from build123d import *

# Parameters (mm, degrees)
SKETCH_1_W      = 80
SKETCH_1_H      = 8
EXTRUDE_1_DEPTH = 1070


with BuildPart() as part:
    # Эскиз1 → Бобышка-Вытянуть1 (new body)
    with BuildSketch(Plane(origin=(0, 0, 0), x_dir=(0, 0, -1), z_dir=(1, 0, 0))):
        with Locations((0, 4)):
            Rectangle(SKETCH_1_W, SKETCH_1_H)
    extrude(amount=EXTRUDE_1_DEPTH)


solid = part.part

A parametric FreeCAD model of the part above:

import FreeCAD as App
import Part
import Sketcher
from FreeCAD import Vector
Q = App.Units.Quantity

doc = App.newDocument("Part")
body = doc.addObject("PartDesign::Body", "Body")

# Sketch on YZ plane
sketch1 = body.newObject("Sketcher::SketchObject", "Sketch")
sketch1.AttachmentSupport = (doc.getObject("YZ_Plane"), [""])
sketch1.MapMode = "FlatFace"
sketch1.addGeometry([
    Part.LineSegment(Vector(8, 40, 0), Vector(0, 40, 0)),
    Part.LineSegment(Vector(0, 40, 0), Vector(0, -40, 0)),
    Part.LineSegment(Vector(0, -40, 0), Vector(8, -40, 0)),
    Part.LineSegment(Vector(8, -40, 0), Vector(8, 40, 0)),
], False)
sketch1.addConstraint([
    Sketcher.Constraint("Coincident", 0, 2, 1, 1),
    Sketcher.Constraint("Coincident", 1, 2, 2, 1),
    Sketcher.Constraint("Coincident", 2, 2, 3, 1),
    Sketcher.Constraint("Coincident", 3, 2, 0, 1),
    Sketcher.Constraint("Horizontal", 0),
    Sketcher.Constraint("Vertical", 1),
    Sketcher.Constraint("Horizontal", 2),
    Sketcher.Constraint("Vertical", 3),
    Sketcher.Constraint("Symmetric", 0, 2, 1, 2, -1, 1),
    Sketcher.Constraint("DistanceX", 0, 2, 0, 1, Q("8 mm")),
    Sketcher.Constraint("DistanceY", 1, 2, 1, 1, Q("80 mm")),
])
pad1 = body.newObject("PartDesign::Pad", "Pad")
pad1.Profile = sketch1
pad1.Length = 1070

doc.recompute()
